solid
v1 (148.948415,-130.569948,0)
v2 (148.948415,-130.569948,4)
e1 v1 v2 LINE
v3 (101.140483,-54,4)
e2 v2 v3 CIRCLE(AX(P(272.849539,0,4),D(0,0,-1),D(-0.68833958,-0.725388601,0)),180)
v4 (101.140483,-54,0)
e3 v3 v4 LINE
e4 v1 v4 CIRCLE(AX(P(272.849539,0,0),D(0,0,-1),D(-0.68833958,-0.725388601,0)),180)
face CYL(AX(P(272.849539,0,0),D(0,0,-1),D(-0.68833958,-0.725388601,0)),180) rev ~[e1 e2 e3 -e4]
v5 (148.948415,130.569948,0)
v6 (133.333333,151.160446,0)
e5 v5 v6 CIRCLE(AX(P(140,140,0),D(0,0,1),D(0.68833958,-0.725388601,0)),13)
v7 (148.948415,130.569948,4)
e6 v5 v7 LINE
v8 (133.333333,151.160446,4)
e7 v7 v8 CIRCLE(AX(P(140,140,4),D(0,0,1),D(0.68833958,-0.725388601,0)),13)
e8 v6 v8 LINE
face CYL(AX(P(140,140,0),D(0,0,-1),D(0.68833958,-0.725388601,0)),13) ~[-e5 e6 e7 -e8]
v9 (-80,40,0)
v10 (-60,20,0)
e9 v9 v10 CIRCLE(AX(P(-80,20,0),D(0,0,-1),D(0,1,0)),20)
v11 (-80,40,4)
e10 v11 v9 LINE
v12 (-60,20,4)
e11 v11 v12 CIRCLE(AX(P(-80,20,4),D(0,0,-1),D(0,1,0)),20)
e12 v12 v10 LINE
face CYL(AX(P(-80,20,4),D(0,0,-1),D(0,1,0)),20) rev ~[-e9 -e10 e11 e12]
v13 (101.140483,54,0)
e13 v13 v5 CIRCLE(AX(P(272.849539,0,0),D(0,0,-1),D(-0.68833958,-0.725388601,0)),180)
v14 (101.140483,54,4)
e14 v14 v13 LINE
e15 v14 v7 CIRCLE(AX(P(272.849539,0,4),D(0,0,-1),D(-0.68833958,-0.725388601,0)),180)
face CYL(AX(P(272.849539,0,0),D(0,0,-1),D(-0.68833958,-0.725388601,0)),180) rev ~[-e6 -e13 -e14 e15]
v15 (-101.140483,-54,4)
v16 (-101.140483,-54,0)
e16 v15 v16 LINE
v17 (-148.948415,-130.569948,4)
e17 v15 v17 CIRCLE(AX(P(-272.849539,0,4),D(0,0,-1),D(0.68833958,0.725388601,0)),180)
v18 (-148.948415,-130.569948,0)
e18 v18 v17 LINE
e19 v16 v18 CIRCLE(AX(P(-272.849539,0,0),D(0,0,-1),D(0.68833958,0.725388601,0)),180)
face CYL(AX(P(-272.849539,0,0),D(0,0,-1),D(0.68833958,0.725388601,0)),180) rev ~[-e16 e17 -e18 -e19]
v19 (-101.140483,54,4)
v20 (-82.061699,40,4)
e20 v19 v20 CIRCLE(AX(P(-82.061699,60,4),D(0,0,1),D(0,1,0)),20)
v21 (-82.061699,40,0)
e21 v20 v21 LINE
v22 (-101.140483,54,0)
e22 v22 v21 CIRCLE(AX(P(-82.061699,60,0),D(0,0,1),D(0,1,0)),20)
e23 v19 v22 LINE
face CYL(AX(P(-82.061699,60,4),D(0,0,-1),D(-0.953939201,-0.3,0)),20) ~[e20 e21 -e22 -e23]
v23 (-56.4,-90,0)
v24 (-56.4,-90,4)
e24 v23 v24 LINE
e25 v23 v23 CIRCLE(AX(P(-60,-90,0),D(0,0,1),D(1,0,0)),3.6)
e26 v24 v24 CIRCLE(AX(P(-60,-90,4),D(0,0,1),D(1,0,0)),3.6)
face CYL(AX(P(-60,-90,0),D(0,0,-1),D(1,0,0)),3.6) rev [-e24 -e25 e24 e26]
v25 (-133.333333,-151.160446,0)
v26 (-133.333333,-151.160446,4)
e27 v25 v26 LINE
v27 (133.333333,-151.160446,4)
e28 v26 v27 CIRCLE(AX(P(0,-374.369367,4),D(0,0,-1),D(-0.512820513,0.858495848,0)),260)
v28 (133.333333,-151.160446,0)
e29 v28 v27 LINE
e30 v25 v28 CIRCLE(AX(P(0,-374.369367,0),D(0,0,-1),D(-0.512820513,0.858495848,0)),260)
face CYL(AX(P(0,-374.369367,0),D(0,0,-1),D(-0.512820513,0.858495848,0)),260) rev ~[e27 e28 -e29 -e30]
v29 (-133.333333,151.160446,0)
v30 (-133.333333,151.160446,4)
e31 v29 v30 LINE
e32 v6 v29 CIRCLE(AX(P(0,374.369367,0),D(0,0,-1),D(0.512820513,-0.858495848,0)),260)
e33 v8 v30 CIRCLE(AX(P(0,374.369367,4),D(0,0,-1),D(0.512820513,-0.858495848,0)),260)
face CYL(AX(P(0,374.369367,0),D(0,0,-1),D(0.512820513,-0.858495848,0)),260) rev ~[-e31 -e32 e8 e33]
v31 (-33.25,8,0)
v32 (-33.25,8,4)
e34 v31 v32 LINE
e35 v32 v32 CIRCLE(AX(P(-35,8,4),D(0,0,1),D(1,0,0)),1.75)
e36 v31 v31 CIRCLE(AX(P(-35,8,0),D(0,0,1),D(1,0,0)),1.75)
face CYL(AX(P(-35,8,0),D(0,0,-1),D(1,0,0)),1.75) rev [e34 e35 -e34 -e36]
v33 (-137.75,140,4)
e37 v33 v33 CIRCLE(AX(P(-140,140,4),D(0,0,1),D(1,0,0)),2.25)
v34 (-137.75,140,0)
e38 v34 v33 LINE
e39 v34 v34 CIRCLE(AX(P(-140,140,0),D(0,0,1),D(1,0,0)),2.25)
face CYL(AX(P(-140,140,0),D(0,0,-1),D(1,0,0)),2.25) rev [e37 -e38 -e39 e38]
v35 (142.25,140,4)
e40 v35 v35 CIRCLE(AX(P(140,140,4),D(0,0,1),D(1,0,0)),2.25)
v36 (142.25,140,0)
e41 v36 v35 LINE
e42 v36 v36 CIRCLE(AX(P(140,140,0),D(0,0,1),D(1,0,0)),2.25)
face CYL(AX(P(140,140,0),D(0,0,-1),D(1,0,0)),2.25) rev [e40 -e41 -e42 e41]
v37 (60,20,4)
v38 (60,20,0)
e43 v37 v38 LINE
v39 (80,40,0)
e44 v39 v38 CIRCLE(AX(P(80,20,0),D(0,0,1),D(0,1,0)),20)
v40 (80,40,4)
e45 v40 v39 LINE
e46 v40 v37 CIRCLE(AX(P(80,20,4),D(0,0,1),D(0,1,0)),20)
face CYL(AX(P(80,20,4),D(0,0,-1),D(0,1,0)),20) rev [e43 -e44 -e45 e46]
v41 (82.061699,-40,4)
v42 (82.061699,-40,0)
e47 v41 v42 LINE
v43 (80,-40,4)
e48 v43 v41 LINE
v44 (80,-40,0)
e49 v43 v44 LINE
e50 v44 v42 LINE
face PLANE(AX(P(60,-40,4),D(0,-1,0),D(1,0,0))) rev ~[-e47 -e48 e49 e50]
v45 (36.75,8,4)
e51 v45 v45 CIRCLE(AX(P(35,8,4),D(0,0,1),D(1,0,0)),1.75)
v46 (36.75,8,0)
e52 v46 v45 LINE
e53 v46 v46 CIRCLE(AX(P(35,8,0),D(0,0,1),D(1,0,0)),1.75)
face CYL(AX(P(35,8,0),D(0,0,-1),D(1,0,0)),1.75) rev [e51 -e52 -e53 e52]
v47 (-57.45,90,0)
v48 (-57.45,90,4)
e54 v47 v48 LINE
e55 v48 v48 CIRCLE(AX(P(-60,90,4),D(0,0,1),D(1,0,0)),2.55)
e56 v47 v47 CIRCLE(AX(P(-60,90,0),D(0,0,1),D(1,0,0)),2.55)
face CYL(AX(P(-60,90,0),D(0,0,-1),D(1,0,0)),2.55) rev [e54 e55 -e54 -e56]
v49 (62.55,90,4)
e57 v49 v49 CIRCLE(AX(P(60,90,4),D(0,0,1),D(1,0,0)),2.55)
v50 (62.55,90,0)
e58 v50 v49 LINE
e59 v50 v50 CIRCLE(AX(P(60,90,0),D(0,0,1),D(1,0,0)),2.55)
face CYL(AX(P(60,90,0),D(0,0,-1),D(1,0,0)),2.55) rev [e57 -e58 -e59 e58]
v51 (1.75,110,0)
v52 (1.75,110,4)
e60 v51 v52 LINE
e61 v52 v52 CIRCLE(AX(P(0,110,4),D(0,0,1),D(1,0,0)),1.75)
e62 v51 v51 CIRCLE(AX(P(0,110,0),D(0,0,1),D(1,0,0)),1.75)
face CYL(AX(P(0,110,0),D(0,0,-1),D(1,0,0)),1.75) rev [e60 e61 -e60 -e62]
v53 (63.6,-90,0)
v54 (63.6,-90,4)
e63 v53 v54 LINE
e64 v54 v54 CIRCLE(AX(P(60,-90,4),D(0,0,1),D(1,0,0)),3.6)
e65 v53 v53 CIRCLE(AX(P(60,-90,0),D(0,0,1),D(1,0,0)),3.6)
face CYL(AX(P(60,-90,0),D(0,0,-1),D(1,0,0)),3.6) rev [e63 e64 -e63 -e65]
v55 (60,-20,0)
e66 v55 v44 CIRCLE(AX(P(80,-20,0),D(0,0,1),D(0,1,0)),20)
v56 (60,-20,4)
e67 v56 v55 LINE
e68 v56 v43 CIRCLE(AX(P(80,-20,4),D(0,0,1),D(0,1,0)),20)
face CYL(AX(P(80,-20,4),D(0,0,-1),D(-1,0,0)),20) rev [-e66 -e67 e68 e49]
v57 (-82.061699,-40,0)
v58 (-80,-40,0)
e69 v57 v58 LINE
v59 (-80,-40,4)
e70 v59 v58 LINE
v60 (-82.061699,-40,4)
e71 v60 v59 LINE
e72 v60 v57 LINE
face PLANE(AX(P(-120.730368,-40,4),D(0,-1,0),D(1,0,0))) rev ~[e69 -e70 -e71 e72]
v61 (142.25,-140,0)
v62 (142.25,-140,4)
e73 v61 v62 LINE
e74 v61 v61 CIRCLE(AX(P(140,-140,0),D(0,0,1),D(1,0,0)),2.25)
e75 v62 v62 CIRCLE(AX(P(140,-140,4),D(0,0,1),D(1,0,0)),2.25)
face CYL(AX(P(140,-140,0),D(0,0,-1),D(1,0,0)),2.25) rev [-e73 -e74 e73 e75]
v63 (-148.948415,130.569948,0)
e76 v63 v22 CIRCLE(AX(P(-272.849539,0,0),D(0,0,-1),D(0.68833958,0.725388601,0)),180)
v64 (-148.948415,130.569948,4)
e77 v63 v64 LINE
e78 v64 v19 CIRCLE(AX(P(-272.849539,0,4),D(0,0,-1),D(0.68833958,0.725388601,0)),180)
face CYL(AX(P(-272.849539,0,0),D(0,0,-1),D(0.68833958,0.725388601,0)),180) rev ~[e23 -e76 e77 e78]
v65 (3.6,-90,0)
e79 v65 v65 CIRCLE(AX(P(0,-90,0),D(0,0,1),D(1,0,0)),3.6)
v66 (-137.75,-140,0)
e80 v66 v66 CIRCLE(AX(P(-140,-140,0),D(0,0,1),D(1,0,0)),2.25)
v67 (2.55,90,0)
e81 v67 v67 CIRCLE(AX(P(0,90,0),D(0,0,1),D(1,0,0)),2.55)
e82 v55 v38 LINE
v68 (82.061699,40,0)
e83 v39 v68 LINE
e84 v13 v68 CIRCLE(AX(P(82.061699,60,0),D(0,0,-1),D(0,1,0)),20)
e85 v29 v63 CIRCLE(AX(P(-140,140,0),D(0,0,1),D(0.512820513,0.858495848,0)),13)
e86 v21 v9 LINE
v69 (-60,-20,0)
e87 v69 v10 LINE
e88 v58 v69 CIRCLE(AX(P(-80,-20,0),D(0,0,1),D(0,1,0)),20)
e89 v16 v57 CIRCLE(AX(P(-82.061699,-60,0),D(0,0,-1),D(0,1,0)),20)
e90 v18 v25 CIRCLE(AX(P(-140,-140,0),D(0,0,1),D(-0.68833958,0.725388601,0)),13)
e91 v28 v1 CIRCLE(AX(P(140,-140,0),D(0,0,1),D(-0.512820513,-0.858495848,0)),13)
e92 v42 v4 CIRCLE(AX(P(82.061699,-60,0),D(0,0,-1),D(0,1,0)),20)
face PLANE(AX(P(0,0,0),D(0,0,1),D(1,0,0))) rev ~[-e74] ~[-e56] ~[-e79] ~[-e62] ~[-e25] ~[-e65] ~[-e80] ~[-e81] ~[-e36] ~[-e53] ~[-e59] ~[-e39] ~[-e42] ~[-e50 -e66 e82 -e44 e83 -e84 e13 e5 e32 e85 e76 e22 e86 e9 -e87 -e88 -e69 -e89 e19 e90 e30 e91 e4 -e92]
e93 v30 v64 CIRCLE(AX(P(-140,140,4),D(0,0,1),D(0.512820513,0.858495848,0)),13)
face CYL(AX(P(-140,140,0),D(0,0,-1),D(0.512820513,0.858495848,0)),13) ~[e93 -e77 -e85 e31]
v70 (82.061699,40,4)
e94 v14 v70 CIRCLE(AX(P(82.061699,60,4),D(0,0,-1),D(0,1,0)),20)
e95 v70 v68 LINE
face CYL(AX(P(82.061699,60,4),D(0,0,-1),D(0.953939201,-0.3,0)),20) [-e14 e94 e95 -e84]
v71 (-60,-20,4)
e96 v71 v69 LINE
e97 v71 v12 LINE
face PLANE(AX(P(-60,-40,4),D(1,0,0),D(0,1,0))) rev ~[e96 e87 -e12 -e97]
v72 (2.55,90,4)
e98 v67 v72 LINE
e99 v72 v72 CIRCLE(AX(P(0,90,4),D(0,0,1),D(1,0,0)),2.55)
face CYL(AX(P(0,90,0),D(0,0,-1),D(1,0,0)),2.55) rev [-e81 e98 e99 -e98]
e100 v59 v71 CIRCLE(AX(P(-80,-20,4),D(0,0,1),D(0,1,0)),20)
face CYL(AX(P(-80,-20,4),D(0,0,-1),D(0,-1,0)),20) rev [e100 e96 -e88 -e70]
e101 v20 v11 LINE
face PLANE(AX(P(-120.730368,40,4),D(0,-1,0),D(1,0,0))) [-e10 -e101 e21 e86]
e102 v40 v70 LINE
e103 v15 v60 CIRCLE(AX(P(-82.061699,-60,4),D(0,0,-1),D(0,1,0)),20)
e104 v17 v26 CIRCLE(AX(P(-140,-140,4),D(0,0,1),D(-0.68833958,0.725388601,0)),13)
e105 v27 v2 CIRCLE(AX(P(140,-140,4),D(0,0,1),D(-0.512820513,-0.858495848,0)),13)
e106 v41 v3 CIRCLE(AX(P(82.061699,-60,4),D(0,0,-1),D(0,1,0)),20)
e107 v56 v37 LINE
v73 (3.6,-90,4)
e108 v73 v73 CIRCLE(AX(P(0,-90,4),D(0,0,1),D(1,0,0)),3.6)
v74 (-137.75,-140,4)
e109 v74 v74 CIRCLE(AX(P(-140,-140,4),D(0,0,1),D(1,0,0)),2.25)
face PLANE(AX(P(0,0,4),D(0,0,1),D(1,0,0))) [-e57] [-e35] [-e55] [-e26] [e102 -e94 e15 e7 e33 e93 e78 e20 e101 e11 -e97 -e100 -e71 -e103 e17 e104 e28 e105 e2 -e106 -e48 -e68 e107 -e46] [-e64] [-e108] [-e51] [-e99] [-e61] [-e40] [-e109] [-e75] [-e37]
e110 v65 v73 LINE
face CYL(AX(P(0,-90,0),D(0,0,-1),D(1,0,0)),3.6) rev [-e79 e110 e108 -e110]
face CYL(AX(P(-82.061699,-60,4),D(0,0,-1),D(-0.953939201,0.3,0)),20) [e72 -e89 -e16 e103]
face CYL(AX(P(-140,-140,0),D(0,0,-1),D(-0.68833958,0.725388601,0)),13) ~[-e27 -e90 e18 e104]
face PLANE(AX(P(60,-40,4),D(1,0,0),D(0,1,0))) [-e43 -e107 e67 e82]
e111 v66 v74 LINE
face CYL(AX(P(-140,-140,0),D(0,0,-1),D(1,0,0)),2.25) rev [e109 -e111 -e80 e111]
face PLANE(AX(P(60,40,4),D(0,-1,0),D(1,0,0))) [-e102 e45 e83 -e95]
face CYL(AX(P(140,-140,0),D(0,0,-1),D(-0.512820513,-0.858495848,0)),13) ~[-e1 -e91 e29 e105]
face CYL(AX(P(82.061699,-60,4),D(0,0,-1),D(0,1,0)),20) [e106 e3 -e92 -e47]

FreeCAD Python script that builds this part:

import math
import FreeCAD as App
import Part
import Sketcher


def edges_at(feature, points):
    """Names of the edges that pass closest to the given points."""
    edges = feature.Shape.Edges
    near = lambda p: min(range(len(edges)), key=lambda i: edges[i].distToShape(Part.Vertex(*p))[0])
    return sorted({f"Edge{near(p) + 1}" for p in points})

doc = App.newDocument("Part")
params = doc.addObject("Spreadsheet::Sheet", "Params")
for row, (alias, value) in enumerate([
    ("sketch1_radius", "13 mm"),
    ("sketch1_radius2", "180 mm"),
    ("sketch1_radius3", "260 mm"),
    ("sketch1_diameter", "4.5 mm"),
    ("sketch1_diameter2", "7.2 mm"),
    ("pad1_length", "4 mm"),
    ("sketch2_height", "80 mm"),
    ("pocket1_length", "10 mm"),
    ("fillet_radius", "20 mm"),
], start=1):
    params.set(f"A{row}", alias)
    params.set(f"B{row}", "=" + value)
    params.setAlias(f"B{row}", alias)

body = doc.addObject("PartDesign::Body", "Body")

# Sketch on XY plane
sketch1 = doc.addObject("Sketcher::SketchObject", "Sketch")
body.addObject(sketch1)
sketch1.AttachmentSupport = (doc.XY_Plane, [""])
sketch1.MapMode = "FlatFace"
sketch1.addGeometry(Part.ArcOfCircle(Part.Circle(App.Vector(-140, 140, 0), App.Vector(0, 0, 1), 13), math.radians(59.148114), math.radians(226.501184)), False)
sketch1.addGeometry(Part.ArcOfCircle(Part.Circle(App.Vector(-272.849539, 0, 0), App.Vector(0, 0, 1), 180), math.radians(-46.501184), math.radians(46.501184)), False)
sketch1.addGeometry(Part.ArcOfCircle(Part.Circle(App.Vector(-140, -140, 0), App.Vector(0, 0, 1), 13), math.radians(133.498816), math.radians(300.851886)), False)
sketch1.addGeometry(Part.ArcOfCircle(Part.Circle(App.Vector(0, -374.369367, 0), App.Vector(0, 0, 1), 260), math.radians(59.148114), math.radians(120.851886)), False)
sketch1.addGeometry(Part.ArcOfCircle(Part.Circle(App.Vector(140, -140, 0), App.Vector(0, 0, 1), 13), math.radians(-120.851886), math.radians(46.501184)), False)
sketch1.addGeometry(Part.ArcOfCircle(Part.Circle(App.Vector(272.849539, 0, 0), App.Vector(0, 0, 1), 180), math.radians(133.498816), math.radians(226.501184)), False)
sketch1.addGeometry(Part.ArcOfCircle(Part.Circle(App.Vector(140, 140, 0), App.Vector(0, 0, 1), 13), math.radians(-46.501184), math.radians(120.851886)), False)
sketch1.addGeometry(Part.ArcOfCircle(Part.Circle(App.Vector(0, 374.369367, 0), App.Vector(0, 0, 1), 260), math.radians(-120.851886), math.radians(-59.148114)), False)
sketch1.addGeometry(Part.Circle(App.Vector(-140, -140, 0), App.Vector(0, 0, 1), 2.25), False)
sketch1.addGeometry(Part.Circle(App.Vector(-60, -90, 0), App.Vector(0, 0, 1), 3.6), False)
sketch1.addGeometry(Part.Circle(App.Vector(0, -90, 0), App.Vector(0, 0, 1), 3.6), False)
sketch1.addGeometry(Part.Circle(App.Vector(60, -90, 0), App.Vector(0, 0, 1), 3.6), False)
sketch1.addGeometry(Part.Circle(App.Vector(140, -140, 0), App.Vector(0, 0, 1), 2.25), False)
sketch1.addGeometry(Part.Circle(App.Vector(-35, 8, 0), App.Vector(0, 0, 1), 1.75), False)
sketch1.addGeometry(Part.Circle(App.Vector(-140, 140, 0), App.Vector(0, 0, 1), 2.25), False)
sketch1.addGeometry(Part.Circle(App.Vector(-60, 90, 0), App.Vector(0, 0, 1), 2.55), False)
sketch1.addGeometry(Part.Circle(App.Vector(0, 90, 0), App.Vector(0, 0, 1), 2.55), False)
sketch1.addGeometry(Part.Circle(App.Vector(0, 110, 0), App.Vector(0, 0, 1), 1.75), False)
sketch1.addGeometry(Part.Circle(App.Vector(35, 8, 0), App.Vector(0, 0, 1), 1.75), False)
sketch1.addGeometry(Part.Circle(App.Vector(60, 90, 0), App.Vector(0, 0, 1), 2.55), False)
sketch1.addGeometry(Part.Circle(App.Vector(140, 140, 0), App.Vector(0, 0, 1), 2.25), False)
sketch1.addConstraint(Sketcher.Constraint("Tangent", 0, 2, 1, 2))
sketch1.addConstraint(Sketcher.Constraint("Tangent", 1, 1, 2, 1))
sketch1.addConstraint(Sketcher.Constraint("Tangent", 2, 2, 3, 2))
sketch1.addConstraint(Sketcher.Constraint("Tangent", 3, 1, 4, 1))
sketch1.addConstraint(Sketcher.Constraint("Tangent", 4, 2, 5, 2))
sketch1.addConstraint(Sketcher.Constraint("Tangent", 5, 1, 6, 1))
sketch1.addConstraint(Sketcher.Constraint("Tangent", 6, 2, 7, 2))
sketch1.addConstraint(Sketcher.Constraint("Tangent", 7, 1, 0, 1))
sketch1.addConstraint(Sketcher.Constraint("Coincident", 8, 3, 2, 3))
sketch1.addConstraint(Sketcher.Constraint("Coincident", 12, 3, 4, 3))
sketch1.addConstraint(Sketcher.Constraint("Coincident", 14, 3, 0, 3))
sketch1.addConstraint(Sketcher.Constraint("Coincident", 20, 3, 6, 3))
sketch1.addConstraint(Sketcher.Constraint("Equal", 0, 2))
sketch1.addConstraint(Sketcher.Constraint("Equal", 2, 4))
sketch1.addConstraint(Sketcher.Constraint("Equal", 1, 5))
sketch1.addConstraint(Sketcher.Constraint("Equal", 4, 6))
sketch1.addConstraint(Sketcher.Constraint("Equal", 3, 7))
sketch1.addConstraint(Sketcher.Constraint("Equal", 9, 10))
sketch1.addConstraint(Sketcher.Constraint("Equal", 10, 11))
sketch1.addConstraint(Sketcher.Constraint("Equal", 8, 12))
sketch1.addConstraint(Sketcher.Constraint("Equal", 12, 14))
sketch1.addConstraint(Sketcher.Constraint("Equal", 15, 16))
sketch1.addConstraint(Sketcher.Constraint("Equal", 13, 17))
sketch1.addConstraint(Sketcher.Constraint("Equal", 17, 18))
sketch1.addConstraint(Sketcher.Constraint("Equal", 16, 19))
sketch1.addConstraint(Sketcher.Constraint("Equal", 14, 20))
sketch1.addConstraint(Sketcher.Constraint("Symmetric", 0, 3, 4, 3, -1, 1))
sketch1.addConstraint(Sketcher.Constraint("Symmetric", 2, 3, 6, 3, -1, 1))
sketch1.addConstraint(Sketcher.Constraint("Symmetric", 11, 3, 15, 3, -1, 1))
sketch1.addConstraint(Sketcher.Constraint("Symmetric", 10, 3, 16, 3, -1, 1))
sketch1.addConstraint(Sketcher.Constraint("Symmetric", 9, 3, 19, 3, -1, 1))
sketch1.addConstraint(Sketcher.Constraint("Symmetric", 2, 3, 4, 3, -2))
sketch1.addConstraint(Sketcher.Constraint("Symmetric", 9, 3, 11, 3, -2))
sketch1.addConstraint(Sketcher.Constraint("Symmetric", 13, 3, 18, 3, -2))
sketch1.addConstraint(Sketcher.Constraint("PointOnObject", 10, 3, -2))
sketch1.addConstraint(Sketcher.Constraint("PointOnObject", 17, 3, -2))
sketch1.addConstraint(Sketcher.Constraint("Horizontal", 9, 3, 10, 3))
sketch1.addConstraint(Sketcher.Constraint("Radius", 0, 13.0))
sketch1.addConstraint(Sketcher.Constraint("Radius", 1, 180.0))
sketch1.addConstraint(Sketcher.Constraint("Radius", 3, 260.0))
sketch1.addConstraint(Sketcher.Constraint("Diameter", 8, 4.5))
sketch1.addConstraint(Sketcher.Constraint("Diameter", 9, 7.2))
sketch1.addConstraint(Sketcher.Constraint("Diameter", 13, 3.5))
sketch1.addConstraint(Sketcher.Constraint("Diameter", 15, 5.1))
sketch1.addConstraint(Sketcher.Constraint("DistanceX", 0, 3, -1, 1, 140.0))
sketch1.addConstraint(Sketcher.Constraint("DistanceY", -1, 1, 0, 3, 140.0))
sketch1.addConstraint(Sketcher.Constraint("DistanceX", 9, 3, -1, 1, 60.0))
sketch1.addConstraint(Sketcher.Constraint("DistanceY", 9, 3, -1, 1, 90.0))
sketch1.addConstraint(Sketcher.Constraint("DistanceX", 13, 3, -1, 1, 35.0))
sketch1.addConstraint(Sketcher.Constraint("DistanceY", -1, 1, 13, 3, 8.0))
sketch1.addConstraint(Sketcher.Constraint("DistanceY", -1, 1, 17, 3, 110.0))
sketch1.setExpression("Constraints[37]", "Params.sketch1_radius")
sketch1.setExpression("Constraints[38]", "Params.sketch1_radius2")
sketch1.setExpression("Constraints[39]", "Params.sketch1_radius3")
sketch1.setExpression("Constraints[40]", "Params.sketch1_diameter")
sketch1.setExpression("Constraints[41]", "Params.sketch1_diameter2")
pad1 = doc.addObject("PartDesign::Pad", "Pad")
body.addObject(pad1)
pad1.Profile = sketch1
pad1.setExpression("Length", "Params.pad1_length")

# Sketch on XY plane
sketch2 = doc.addObject("Sketcher::SketchObject", "Sketch001")
body.addObject(sketch2)
sketch2.AttachmentSupport = (doc.XY_Plane, [""])
sketch2.MapMode = "FlatFace"
sketch2.AttachmentOffset = App.Placement(App.Vector(0, 0, 4), App.Rotation())
sketch2.addGeometry(Part.LineSegment(App.Vector(-120.730368, 40, 0), App.Vector(-120.730368, -40, 0)), False)
sketch2.addGeometry(Part.LineSegment(App.Vector(-120.730368, -40, 0), App.Vector(-60, -40, 0)), False)
sketch2.addGeometry(Part.LineSegment(App.Vector(-60, -40, 0), App.Vector(-60, 40, 0)), False)
sketch2.addGeometry(Part.LineSegment(App.Vector(-60, 40, 0), App.Vector(-120.730368, 40, 0)), False)
sketch2.addGeometry(Part.LineSegment(App.Vector(60, 40, 0), App.Vector(60, -40, 0)), False)
sketch2.addGeometry(Part.LineSegment(App.Vector(60, -40, 0), App.Vector(120.730368, -40, 0)), False)
sketch2.addGeometry(Part.LineSegment(App.Vector(120.730368, -40, 0), App.Vector(120.730368, 40, 0)), False)
sketch2.addGeometry(Part.LineSegment(App.Vector(120.730368, 40, 0), App.Vector(60, 40, 0)), False)
sketch2.addConstraint(Sketcher.Constraint("Coincident", 0, 2, 1, 1))
sketch2.addConstraint(Sketcher.Constraint("Coincident", 1, 2, 2, 1))
sketch2.addConstraint(Sketcher.Constraint("Coincident", 2, 2, 3, 1))
sketch2.addConstraint(Sketcher.Constraint("Coincident", 3, 2, 0, 1))
sketch2.addConstraint(Sketcher.Constraint("Coincident", 4, 2, 5, 1))
sketch2.addConstraint(Sketcher.Constraint("Coincident", 5, 2, 6, 1))
sketch2.addConstraint(Sketcher.Constraint("Coincident", 6, 2, 7, 1))
sketch2.addConstraint(Sketcher.Constraint("Coincident", 7, 2, 4, 1))
sketch2.addConstraint(Sketcher.Constraint("Vertical", 0))
sketch2.addConstraint(Sketcher.Constraint("Horizontal", 1))
sketch2.addConstraint(Sketcher.Constraint("Vertical", 2))
sketch2.addConstraint(Sketcher.Constraint("Horizontal", 3))
sketch2.addConstraint(Sketcher.Constraint("Vertical", 4))
sketch2.addConstraint(Sketcher.Constraint("Horizontal", 5))
sketch2.addConstraint(Sketcher.Constraint("Vertical", 6))
sketch2.addConstraint(Sketcher.Constraint("Horizontal", 7))
sketch2.addConstraint(Sketcher.Constraint("Symmetric", 2, 2, 4, 2, -1, 1))
sketch2.addConstraint(Sketcher.Constraint("Symmetric", 0, 2, 6, 2, -1, 1))
sketch2.addConstraint(Sketcher.Constraint("Horizontal", 1, 2, 4, 2))
sketch2.addConstraint(Sketcher.Constraint("DistanceY", 0, 2, 0, 1, 80.0))
sketch2.addConstraint(Sketcher.Constraint("DistanceX", 1, 2, -1, 1, 60.0))
sketch2.addConstraint(Sketcher.Constraint("DistanceX", 1, 1, 1, 2, 60.730368))
sketch2.setExpression("Constraints[19]", "Params.sketch2_height")
pocket1 = doc.addObject("PartDesign::Pocket", "Pocket")
body.addObject(pocket1)
pocket1.Profile = sketch2
pocket1.setExpression("Length", "Params.pocket1_length")
doc.recompute()

fillet = doc.addObject("PartDesign::Fillet", "Fillet")
body.addObject(fillet)
fillet.Base = (pocket1, edges_at(pocket1, [
    (60, -40, 2),
    (60, 40, 2),
    (-97.35, -40, 2),
    (-97.35, 40, 2),
    (-60, 40, 2),
    (-60, -40, 2),
    (97.35, 40, 2),
    (97.35, -40, 2),
]))
fillet.setExpression("Radius", "Params.fillet_radius")

doc.recompute()
